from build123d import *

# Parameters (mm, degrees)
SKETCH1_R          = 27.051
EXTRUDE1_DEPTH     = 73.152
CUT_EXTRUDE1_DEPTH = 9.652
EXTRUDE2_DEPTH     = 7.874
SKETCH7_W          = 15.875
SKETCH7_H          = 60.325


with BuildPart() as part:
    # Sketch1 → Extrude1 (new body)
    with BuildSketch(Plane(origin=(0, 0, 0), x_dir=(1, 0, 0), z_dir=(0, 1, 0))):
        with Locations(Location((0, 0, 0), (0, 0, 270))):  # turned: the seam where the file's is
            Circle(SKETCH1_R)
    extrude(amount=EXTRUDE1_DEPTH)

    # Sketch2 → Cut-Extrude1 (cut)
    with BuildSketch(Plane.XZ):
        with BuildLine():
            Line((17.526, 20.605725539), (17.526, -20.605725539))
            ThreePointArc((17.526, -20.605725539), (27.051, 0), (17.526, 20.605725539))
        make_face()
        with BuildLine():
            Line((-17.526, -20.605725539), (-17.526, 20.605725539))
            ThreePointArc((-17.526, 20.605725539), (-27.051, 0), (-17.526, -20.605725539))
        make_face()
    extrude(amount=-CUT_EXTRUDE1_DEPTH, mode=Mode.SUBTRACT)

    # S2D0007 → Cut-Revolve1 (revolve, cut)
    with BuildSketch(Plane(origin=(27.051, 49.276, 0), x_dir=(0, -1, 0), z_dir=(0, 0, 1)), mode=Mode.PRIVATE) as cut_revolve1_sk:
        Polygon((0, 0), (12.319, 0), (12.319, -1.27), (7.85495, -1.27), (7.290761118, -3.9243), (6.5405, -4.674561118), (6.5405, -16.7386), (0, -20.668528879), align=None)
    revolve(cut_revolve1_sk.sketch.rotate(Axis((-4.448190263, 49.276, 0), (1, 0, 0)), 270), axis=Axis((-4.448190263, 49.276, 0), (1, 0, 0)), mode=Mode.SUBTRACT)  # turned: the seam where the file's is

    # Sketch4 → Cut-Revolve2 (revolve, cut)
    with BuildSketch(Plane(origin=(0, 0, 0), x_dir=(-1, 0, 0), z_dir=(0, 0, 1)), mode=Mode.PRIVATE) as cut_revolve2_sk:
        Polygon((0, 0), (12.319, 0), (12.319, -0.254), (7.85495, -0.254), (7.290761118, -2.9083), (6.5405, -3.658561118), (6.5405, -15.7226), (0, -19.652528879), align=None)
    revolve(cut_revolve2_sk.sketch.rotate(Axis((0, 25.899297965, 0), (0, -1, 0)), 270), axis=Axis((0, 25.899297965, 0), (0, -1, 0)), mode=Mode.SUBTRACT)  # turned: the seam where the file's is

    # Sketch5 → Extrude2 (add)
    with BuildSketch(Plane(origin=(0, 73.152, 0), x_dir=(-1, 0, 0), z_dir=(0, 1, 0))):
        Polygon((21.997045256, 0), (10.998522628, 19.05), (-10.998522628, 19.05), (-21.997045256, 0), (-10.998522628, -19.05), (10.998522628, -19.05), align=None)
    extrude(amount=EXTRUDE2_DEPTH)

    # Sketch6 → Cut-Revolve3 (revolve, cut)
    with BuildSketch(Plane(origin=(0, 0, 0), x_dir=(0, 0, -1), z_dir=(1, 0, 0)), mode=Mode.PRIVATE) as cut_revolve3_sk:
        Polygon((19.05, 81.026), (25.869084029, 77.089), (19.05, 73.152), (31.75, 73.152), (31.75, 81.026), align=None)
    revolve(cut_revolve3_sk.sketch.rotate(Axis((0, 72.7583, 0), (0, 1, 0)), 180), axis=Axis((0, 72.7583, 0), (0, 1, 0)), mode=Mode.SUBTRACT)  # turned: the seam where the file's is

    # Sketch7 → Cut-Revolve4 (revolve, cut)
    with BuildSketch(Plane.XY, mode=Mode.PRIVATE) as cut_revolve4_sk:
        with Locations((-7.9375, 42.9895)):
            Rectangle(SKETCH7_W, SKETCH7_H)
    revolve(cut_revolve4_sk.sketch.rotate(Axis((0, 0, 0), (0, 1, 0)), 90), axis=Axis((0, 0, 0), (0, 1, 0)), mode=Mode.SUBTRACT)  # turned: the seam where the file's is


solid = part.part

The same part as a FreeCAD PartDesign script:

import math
import FreeCAD as App
import Part
import Sketcher
from FreeCAD import Vector
Q = App.Units.Quantity

doc = App.newDocument("Part")
params = doc.addObject("Spreadsheet::Sheet", "Params")
for row, (alias, value) in enumerate([
    ("sketch1_diameter", "2.13 in"),
    ("pad1_length", "2.88 in"),
    ("sketch2_radius", "1.065 in"),
    ("pocket1_length", "0.38 in"),
    ("sketch3_width", "0.05 in"),
    ("sketch3_height", "0.485 in"),
    ("groove_angle", "360 deg"),
    ("sketch4_height", "0.01 in"),
    ("sketch4_width", "0.485 in"),
    ("groove2_angle", "360 deg"),
    ("pad2_length", "0.31 in"),
    ("sketch6_height", "0.5 in"),
    ("sketch6_width", "0.31 in"),
    ("groove3_angle", "360 deg"),
    ("sketch7_width", "0.625 in"),
    ("sketch7_height", "2.375 in"),
    ("groove4_angle", "360 deg"),
], start=1):
    params.set(f"A{row}", alias)
    params.set(f"B{row}", "=" + value)
    params.setAlias(f"B{row}", alias)

body = doc.addObject("PartDesign::Body", "Body")

# Sketch on XZ plane
sketch1 = body.newObject("Sketcher::SketchObject", "Sketch")
sketch1.AttachmentSupport = (doc.getObject("XZ_Plane"), [""])
sketch1.MapMode = "FlatFace"
sketch1.addGeometry(Part.Circle(Vector(0, 0, 0), Vector(0, 0, 1), 27), False)
sketch1.addConstraint(Sketcher.Constraint("Coincident", 0, 3, -1, 1))
sketch1.addConstraint(Sketcher.Constraint("Diameter", 0, Q("2.13 in")))
sketch1.setExpression("Constraints[1]", "Params.sketch1_diameter")
pad1 = body.newObject("PartDesign::Pad", "Pad")
pad1.Profile = sketch1
pad1.setExpression("Length", "Params.pad1_length")
pad1.Reversed = True

# Sketch on XZ plane
sketch2 = body.newObject("Sketcher::SketchObject", "Sketch001")
sketch2.AttachmentSupport = (doc.getObject("XZ_Plane"), [""])
sketch2.MapMode = "FlatFace"
sketch2.addGeometry(Part.LineSegment(Vector(18, 21, 0), Vector(18, -21, 0)), False)
sketch2.addGeometry(Part.ArcOfCircle(Part.Circle(Vector(0, 0, 0), Vector(0, 0, 1), 27), math.radians(-50), math.radians(50)), False)
sketch2.addGeometry(Part.LineSegment(Vector(-18, -21, 0), Vector(-18, 21, 0)), False)
sketch2.addGeometry(Part.ArcOfCircle(Part.Circle(Vector(0, 0, 0), Vector(0, 0, 1), 27), math.radians(130), math.radians(230)), False)
sketch2.addConstraint(Sketcher.Constraint("Coincident", 0, 1, 1, 2))
sketch2.addConstraint(Sketcher.Constraint("Coincident", 1, 1, 0, 2))
sketch2.addConstraint(Sketcher.Constraint("Coincident", 2, 1, 3, 2))
sketch2.addConstraint(Sketcher.Constraint("Coincident", 3, 1, 2, 2))
sketch2.addConstraint(Sketcher.Constraint("Vertical", 0))
sketch2.addConstraint(Sketcher.Constraint("Vertical", 2))
sketch2.addConstraint(Sketcher.Constraint("Coincident", 1, 3, -1, 1))
sketch2.addConstraint(Sketcher.Constraint("Coincident", 3, 3, -1, 1))
sketch2.addConstraint(Sketcher.Constraint("Equal", 1, 3))
sketch2.addConstraint(Sketcher.Constraint("Horizontal", 1, 1, 2, 1))
sketch2.addConstraint(Sketcher.Constraint("Radius", 1, Q("1.065 in")))
sketch2.addConstraint(Sketcher.Constraint("DistanceX", -1, 1, 0, 1, Q("0.69 in")))
sketch2.setExpression("Constraints[10]", "Params.sketch2_radius")
pocket1 = body.newObject("PartDesign::Pocket", "Pocket")
pocket1.Profile = sketch2
pocket1.setExpression("Length", "Params.pocket1_length")

# Sketch on XY plane
sketch3 = body.newObject("Sketcher::SketchObject", "Sketch002")
sketch3.AttachmentSupport = (doc.getObject("XY_Plane"), [""])
sketch3.MapMode = "FlatFace"
sketch3.addGeometry(Part.LineSegment(Vector(27.1, 37, 0), Vector(27.1, 49.3, 0)), False)
sketch3.addGeometry(Part.LineSegment(Vector(27.1, 49.3, 0), Vector(6.4, 49.3, 0)), False)
sketch3.addGeometry(Part.LineSegment(Vector(6.4, 49.3, 0), Vector(10.3, 42.7, 0)), False)
sketch3.addGeometry(Part.LineSegment(Vector(10.3, 42.7, 0), Vector(22.4, 42.7, 0)), False)
sketch3.addGeometry(Part.LineSegment(Vector(22.4, 42.7, 0), Vector(23.1, 42, 0)), False)
sketch3.addGeometry(Part.LineSegment(Vector(23.1, 42, 0), Vector(25.8, 41.4, 0)), False)
sketch3.addGeometry(Part.LineSegment(Vector(25.8, 41.4, 0), Vector(25.8, 37, 0)), False)
sketch3.addGeometry(Part.LineSegment(Vector(25.8, 37, 0), Vector(27.1, 37, 0)), False)
sketch3.addGeometry(Part.LineSegment(Vector(6.4, 49.3, 0), Vector(27.1, 49.3, 0)), True)  # axis
sketch3.addConstraint(Sketcher.Constraint("Coincident", 0, 2, 1, 1))
sketch3.addConstraint(Sketcher.Constraint("Coincident", 1, 2, 2, 1))
sketch3.addConstraint(Sketcher.Constraint("Coincident", 2, 2, 3, 1))
sketch3.addConstraint(Sketcher.Constraint("Coincident", 3, 2, 4, 1))
sketch3.addConstraint(Sketcher.Constraint("Coincident", 4, 2, 5, 1))
sketch3.addConstraint(Sketcher.Constraint("Coincident", 5, 2, 6, 1))
sketch3.addConstraint(Sketcher.Constraint("Coincident", 6, 2, 7, 1))
sketch3.addConstraint(Sketcher.Constraint("Coincident", 7, 2, 0, 1))
sketch3.addConstraint(Sketcher.Constraint("Vertical", 0))
sketch3.addConstraint(Sketcher.Constraint("Horizontal", 1))
sketch3.addConstraint(Sketcher.Constraint("Horizontal", 3))
sketch3.addConstraint(Sketcher.Constraint("Vertical", 6))
sketch3.addConstraint(Sketcher.Constraint("Horizontal", 7))
sketch3.addConstraint(Sketcher.Constraint("Horizontal", 8))
sketch3.addConstraint(Sketcher.Constraint("Coincident", 8, 1, 1, 2))
sketch3.addConstraint(Sketcher.Constraint("Vertical", 7, 2, 8, 2))
sketch3.addConstraint(Sketcher.Constraint("Angle", 2, Q("-59 deg")))
sketch3.addConstraint(Sketcher.Constraint("Angle", 4, Q("-45 deg")))
sketch3.addConstraint(Sketcher.Constraint("Angle", 5, Q("-12 deg")))
sketch3.addConstraint(Sketcher.Constraint("DistanceX", 7, 1, 7, 2, Q("0.05 in")))
sketch3.addConstraint(Sketcher.Constraint("DistanceY", 0, 1, 0, 2, Q("0.485 in")))
sketch3.addConstraint(Sketcher.Constraint("DistanceY", -1, 1, 0, 2, Q("1.94 in")))
sketch3.addConstraint(Sketcher.Constraint("DistanceX", -1, 1, 0, 2, Q("1.065 in")))
sketch3.addConstraint(Sketcher.Constraint("DistanceX", -1, 1, 2, 2, Q("0.406 in")))
sketch3.addConstraint(Sketcher.Constraint("DistanceY", -1, 1, 2, 2, Q("1.6825 in")))
sketch3.addConstraint(Sketcher.Constraint("DistanceX", -1, 1, 4, 2, Q("0.9105 in")))
sketch3.addConstraint(Sketcher.Constraint("DistanceX", 3, 1, 3, 2, 12.064039))
sketch3.setExpression("Constraints[19]", "Params.sketch3_width")
sketch3.setExpression("Constraints[20]", "Params.sketch3_height")
groove = body.newObject("PartDesign::Groove", "Groove")
groove.Profile = sketch3
groove.ReferenceAxis = (sketch3, ["Axis0"])
groove.setExpression("Angle", "Params.groove_angle")

# Sketch on XY plane
sketch4 = body.newObject("Sketcher::SketchObject", "Sketch003")
sketch4.AttachmentSupport = (doc.getObject("XY_Plane"), [""])
sketch4.MapMode = "FlatFace"
sketch4.addGeometry(Part.LineSegment(Vector(-12.32, 0, 0), Vector(0, 0, 0)), False)
sketch4.addGeometry(Part.LineSegment(Vector(0, 0, 0), Vector(0, 19.65, 0)), False)
sketch4.addGeometry(Part.LineSegment(Vector(0, 19.65, 0), Vector(-6.54, 15.72, 0)), False)
sketch4.addGeometry(Part.LineSegment(Vector(-6.54, 15.72, 0), Vector(-6.54, 3.66, 0)), False)
sketch4.addGeometry(Part.LineSegment(Vector(-6.54, 3.66, 0), Vector(-7.29, 2.91, 0)), False)
sketch4.addGeometry(Part.LineSegment(Vector(-7.29, 2.91, 0), Vector(-7.85, 0.25, 0)), False)
sketch4.addGeometry(Part.LineSegment(Vector(-7.85, 0.25, 0), Vector(-12.32, 0.25, 0)), False)
sketch4.addGeometry(Part.LineSegment(Vector(-12.32, 0.25, 0), Vector(-12.32, 0, 0)), False)
sketch4.addConstraint(Sketcher.Constraint("Coincident", 0, 2, 1, 1))
sketch4.addConstraint(Sketcher.Constraint("Coincident", 1, 2, 2, 1))
sketch4.addConstraint(Sketcher.Constraint("Coincident", 2, 2, 3, 1))
sketch4.addConstraint(Sketcher.Constraint("Coincident", 3, 2, 4, 1))
sketch4.addConstraint(Sketcher.Constraint("Coincident", 4, 2, 5, 1))
sketch4.addConstraint(Sketcher.Constraint("Coincident", 5, 2, 6, 1))
sketch4.addConstraint(Sketcher.Constraint("Coincident", 6, 2, 7, 1))
sketch4.addConstraint(Sketcher.Constraint("Coincident", 7, 2, 0, 1))
sketch4.addConstraint(Sketcher.Constraint("Horizontal", 0))
sketch4.addConstraint(Sketcher.Constraint("Vertical", 1))
sketch4.addConstraint(Sketcher.Constraint("Vertical", 3))
sketch4.addConstraint(Sketcher.Constraint("Horizontal", 6))
sketch4.addConstraint(Sketcher.Constraint("Vertical", 7))
sketch4.addConstraint(Sketcher.Constraint("Coincident", 0, 2, -1, 1))
sketch4.addConstraint(Sketcher.Constraint("Angle", 2, Q("-149 deg")))
sketch4.addConstraint(Sketcher.Constraint("Angle", 4, Q("-135 deg")))
sketch4.addConstraint(Sketcher.Constraint("Angle", 5, Q("-102 deg")))
sketch4.addConstraint(Sketcher.Constraint("DistanceY", 7, 2, 7, 1, Q("0.01 in")))
sketch4.addConstraint(Sketcher.Constraint("DistanceX", 0, 1, 0, 2, Q("0.485 in")))
sketch4.addConstraint(Sketcher.Constraint("DistanceY", -1, 1, 2, 2, Q("0.619 in")))
sketch4.addConstraint(Sketcher.Constraint("DistanceX", 2, 2, -1, 1, Q("0.2575 in")))
sketch4.addConstraint(Sketcher.Constraint("DistanceY", -1, 1, 4, 2, Q("0.1145 in")))
sketch4.addConstraint(Sketcher.Constraint("DistanceX", 6, 2, 6, 1, 4.46405))
sketch4.setExpression("Constraints[17]", "Params.sketch4_height")
sketch4.setExpression("Constraints[18]", "Params.sketch4_width")
groove2 = body.newObject("PartDesign::Groove", "Groove001")
groove2.Profile = sketch4
groove2.ReferenceAxis = (sketch4, ["V_Axis"])
groove2.setExpression("Angle", "Params.groove2_angle")

# Sketch on XZ plane
sketch5 = body.newObject("Sketcher::SketchObject", "Sketch004")
sketch5.AttachmentSupport = (doc.getObject("XZ_Plane"), [""])
sketch5.MapMode = "FlatFace"
sketch5.AttachmentOffset = App.Placement(Vector(0, 0, -2.88 * 25.4), App.Rotation())
sketch5.addGeometry(Part.LineSegment(Vector(-22, 0, 0), Vector(-11, 19, 0)), False)
sketch5.addGeometry(Part.LineSegment(Vector(-11, 19, 0), Vector(11, 19, 0)), False)
sketch5.addGeometry(Part.LineSegment(Vector(11, 19, 0), Vector(22, 0, 0)), False)
sketch5.addGeometry(Part.LineSegment(Vector(22, 0, 0), Vector(11, -19, 0)), False)
sketch5.addGeometry(Part.LineSegment(Vector(11, -19, 0), Vector(-11, -19, 0)), False)
sketch5.addGeometry(Part.LineSegment(Vector(-11, -19, 0), Vector(-22, 0, 0)), False)
sketch5.addConstraint(Sketcher.Constraint("Coincident", 0, 2, 1, 1))
sketch5.addConstraint(Sketcher.Constraint("Coincident", 1, 2, 2, 1))
sketch5.addConstraint(Sketcher.Constraint("Coincident", 2, 2, 3, 1))
sketch5.addConstraint(Sketcher.Constraint("Coincident", 3, 2, 4, 1))
sketch5.addConstraint(Sketcher.Constraint("Coincident", 4, 2, 5, 1))
sketch5.addConstraint(Sketcher.Constraint("Coincident", 5, 2, 0, 1))
sketch5.addConstraint(Sketcher.Constraint("Horizontal", 1))
sketch5.addConstraint(Sketcher.Constraint("Horizontal", 4))
sketch5.addConstraint(Sketcher.Constraint("Symmetric", 0, 2, 3, 2, -1, 1))
sketch5.addConstraint(Sketcher.Constraint("Symmetric", 2, 2, 5, 2, -1, 1))
sketch5.addConstraint(Sketcher.Constraint("PointOnObject", 2, 2, -1))
sketch5.addConstraint(Sketcher.Constraint("Parallel", 2, 5))
sketch5.addConstraint(Sketcher.Constraint("Vertical", 1, 2, 3, 2))
sketch5.addConstraint(Sketcher.Constraint("Angle", 0, Q("60 deg")))
sketch5.addConstraint(Sketcher.Constraint("DistanceY", 3, 2, 1, 2, Q("1.5 in")))
sketch5.addConstraint(Sketcher.Constraint("DistanceX", 1, 1, 1, 2, 21.997045))
pad2 = body.newObject("PartDesign::Pad", "Pad001")
pad2.Profile = sketch5
pad2.setExpression("Length", "Params.pad2_length")
pad2.Reversed = True

# Sketch on YZ plane
sketch6 = body.newObject("Sketcher::SketchObject", "Sketch005")
sketch6.AttachmentSupport = (doc.getObject("YZ_Plane"), [""])
sketch6.MapMode = "FlatFace"
sketch6.addGeometry(Part.LineSegment(Vector(81, -19, 0), Vector(77, -26, 0)), False)
sketch6.addGeometry(Part.LineSegment(Vector(77, -26, 0), Vector(73, -19, 0)), False)
sketch6.addGeometry(Part.LineSegment(Vector(73, -19, 0), Vector(73, -32, 0)), False)
sketch6.addGeometry(Part.LineSegment(Vector(73, -32, 0), Vector(81, -32, 0)), False)
sketch6.addGeometry(Part.LineSegment(Vector(81, -32, 0), Vector(81, -19, 0)), False)
sketch6.addConstraint(Sketcher.Constraint("Coincident", 0, 2, 1, 1))
sketch6.addConstraint(Sketcher.Constraint("Coincident", 1, 2, 2, 1))
sketch6.addConstraint(Sketcher.Constraint("Coincident", 2, 2, 3, 1))
sketch6.addConstraint(Sketcher.Constraint("Coincident", 3, 2, 4, 1))
sketch6.addConstraint(Sketcher.Constraint("Coincident", 4, 2, 0, 1))
sketch6.addConstraint(Sketcher.Constraint("Vertical", 2))
sketch6.addConstraint(Sketcher.Constraint("Horizontal", 3))
sketch6.addConstraint(Sketcher.Constraint("Vertical", 4))
sketch6.addConstraint(Sketcher.Constraint("Horizontal", 1, 2, 4, 2))
sketch6.addConstraint(Sketcher.Constraint("Equal", 0, 1))
sketch6.addConstraint(Sketcher.Constraint("DistanceY", 2, 2, 2, 1, Q("0.5 in")))
sketch6.addConstraint(Sketcher.Constraint("Angle", 0, Q("-120 deg")))
sketch6.addConstraint(Sketcher.Constraint("DistanceX", 3, 1, 3, 2, Q("0.31 in")))
sketch6.addConstraint(Sketcher.Constraint("DistanceX", -1, 1, 1, 2, Q("2.88 in")))
sketch6.addConstraint(Sketcher.Constraint("DistanceY", 1, 2, -1, 1, Q("0.75 in")))
sketch6.setExpression("Constraints[10]", "Params.sketch6_height")
sketch6.setExpression("Constraints[12]", "Params.sketch6_width")
groove3 = body.newObject("PartDesign::Groove", "Groove002")
groove3.Profile = sketch6
groove3.ReferenceAxis = (sketch6, ["H_Axis"])
groove3.setExpression("Angle", "Params.groove3_angle")

# Sketch on XY plane
sketch7 = body.newObject("Sketcher::SketchObject", "Sketch006")
sketch7.AttachmentSupport = (doc.getObject("XY_Plane"), [""])
sketch7.MapMode = "FlatFace"
sketch7.addGeometry(Part.LineSegment(Vector(-16, 73, 0), Vector(-16, 13, 0)), False)
sketch7.addGeometry(Part.LineSegment(Vector(-16, 13, 0), Vector(0, 13, 0)), False)
sketch7.addGeometry(Part.LineSegment(Vector(0, 13, 0), Vector(0, 73, 0)), False)
sketch7.addGeometry(Part.LineSegment(Vector(0, 73, 0), Vector(-16, 73, 0)), False)
sketch7.addConstraint(Sketcher.Constraint("Coincident", 0, 2, 1, 1))
sketch7.addConstraint(Sketcher.Constraint("Coincident", 1, 2, 2, 1))
sketch7.addConstraint(Sketcher.Constraint("Coincident", 2, 2, 3, 1))
sketch7.addConstraint(Sketcher.Constraint("Coincident", 3, 2, 0, 1))
sketch7.addConstraint(Sketcher.Constraint("Vertical", 0))
sketch7.addConstraint(Sketcher.Constraint("Horizontal", 1))
sketch7.addConstraint(Sketcher.Constraint("Vertical", 2))
sketch7.addConstraint(Sketcher.Constraint("Horizontal", 3))
sketch7.addConstraint(Sketcher.Constraint("PointOnObject", 1, 2, -2))
sketch7.addConstraint(Sketcher.Constraint("DistanceX", 1, 1, 1, 2, Q("0.625 in")))
sketch7.addConstraint(Sketcher.Constraint("DistanceY", 0, 2, 0, 1, Q("2.375 in")))
sketch7.addConstraint(Sketcher.Constraint("DistanceY", -1, 1, 2, 2, Q("2.88 in")))
sketch7.setExpression("Constraints[9]", "Params.sketch7_width")
sketch7.setExpression("Constraints[10]", "Params.sketch7_height")
groove4 = body.newObject("PartDesign::Groove", "Groove003")
groove4.Profile = sketch7
groove4.ReferenceAxis = (sketch7, ["V_Axis"])
groove4.setExpression("Angle", "Params.groove4_angle")

doc.recompute()
